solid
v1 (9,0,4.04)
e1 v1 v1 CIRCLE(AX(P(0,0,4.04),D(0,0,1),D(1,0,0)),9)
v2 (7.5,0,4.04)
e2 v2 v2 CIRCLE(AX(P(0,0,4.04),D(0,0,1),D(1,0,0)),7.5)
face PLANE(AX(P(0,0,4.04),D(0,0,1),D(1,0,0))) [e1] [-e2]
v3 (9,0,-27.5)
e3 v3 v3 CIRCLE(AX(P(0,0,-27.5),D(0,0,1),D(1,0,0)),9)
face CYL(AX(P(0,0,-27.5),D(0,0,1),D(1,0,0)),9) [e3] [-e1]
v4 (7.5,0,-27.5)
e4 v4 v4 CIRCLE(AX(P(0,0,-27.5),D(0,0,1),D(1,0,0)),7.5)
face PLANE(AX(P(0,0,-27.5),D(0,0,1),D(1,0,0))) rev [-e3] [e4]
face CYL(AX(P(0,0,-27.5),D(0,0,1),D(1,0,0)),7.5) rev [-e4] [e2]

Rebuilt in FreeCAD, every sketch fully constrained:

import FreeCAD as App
import Part
import Sketcher
from FreeCAD import Vector
Q = App.Units.Quantity

doc = App.newDocument("Part")
body = doc.addObject("PartDesign::Body", "Body")

# Sketch on XY plane
sketch1 = body.newObject("Sketcher::SketchObject", "Sketch")
sketch1.AttachmentSupport = (doc.getObject("XY_Plane"), [""])
sketch1.MapMode = "FlatFace"
sketch1.addGeometry([
    Part.Circle(Vector(0, 0, 0), Vector(0, 0, 1), 9),
    Part.Circle(Vector(0, 0, 0), Vector(0, 0, 1), 8),
], False)
sketch1.addConstraint([
    Sketcher.Constraint("Coincident", 0, 3, -1, 1),
    Sketcher.Constraint("Coincident", 1, 3, -1, 1),
    Sketcher.Constraint("Diameter", 0, Q("18 mm")),
    Sketcher.Constraint("Diameter", 1, Q("15 mm")),
])
pad1 = body.newObject("PartDesign::Pad", "Pad")
pad1.Profile = sketch1
pad1.Length = 27.5
pad1.Reversed = True

# Sketch on XY plane
sketch2 = body.newObject("Sketcher::SketchObject", "Sketch001")
sketch2.AttachmentSupport = (doc.getObject("XY_Plane"), [""])
sketch2.MapMode = "FlatFace"
sketch2.AttachmentOffset = App.Placement(Vector(0, 0, 4.04), App.Rotation())
sketch2.addGeometry([
    Part.Circle(Vector(0, 0, 0), Vector(0, 0, 1), 9),
    Part.Circle(Vector(0, 0, 0), Vector(0, 0, 1), 8),
], False)
sketch2.addConstraint([
    Sketcher.Constraint("Coincident", 0, 3, -1, 1),
    Sketcher.Constraint("Coincident", 1, 3, -1, 1),
    Sketcher.Constraint("Diameter", 0, Q("18 mm")),
    Sketcher.Constraint("Diameter", 1, Q("15 mm")),
])
pad2 = body.newObject("PartDesign::Pad", "Pad001")
pad2.Profile = sketch2
pad2.Length = 4.04
pad2.Reversed = True

doc.recompute()
